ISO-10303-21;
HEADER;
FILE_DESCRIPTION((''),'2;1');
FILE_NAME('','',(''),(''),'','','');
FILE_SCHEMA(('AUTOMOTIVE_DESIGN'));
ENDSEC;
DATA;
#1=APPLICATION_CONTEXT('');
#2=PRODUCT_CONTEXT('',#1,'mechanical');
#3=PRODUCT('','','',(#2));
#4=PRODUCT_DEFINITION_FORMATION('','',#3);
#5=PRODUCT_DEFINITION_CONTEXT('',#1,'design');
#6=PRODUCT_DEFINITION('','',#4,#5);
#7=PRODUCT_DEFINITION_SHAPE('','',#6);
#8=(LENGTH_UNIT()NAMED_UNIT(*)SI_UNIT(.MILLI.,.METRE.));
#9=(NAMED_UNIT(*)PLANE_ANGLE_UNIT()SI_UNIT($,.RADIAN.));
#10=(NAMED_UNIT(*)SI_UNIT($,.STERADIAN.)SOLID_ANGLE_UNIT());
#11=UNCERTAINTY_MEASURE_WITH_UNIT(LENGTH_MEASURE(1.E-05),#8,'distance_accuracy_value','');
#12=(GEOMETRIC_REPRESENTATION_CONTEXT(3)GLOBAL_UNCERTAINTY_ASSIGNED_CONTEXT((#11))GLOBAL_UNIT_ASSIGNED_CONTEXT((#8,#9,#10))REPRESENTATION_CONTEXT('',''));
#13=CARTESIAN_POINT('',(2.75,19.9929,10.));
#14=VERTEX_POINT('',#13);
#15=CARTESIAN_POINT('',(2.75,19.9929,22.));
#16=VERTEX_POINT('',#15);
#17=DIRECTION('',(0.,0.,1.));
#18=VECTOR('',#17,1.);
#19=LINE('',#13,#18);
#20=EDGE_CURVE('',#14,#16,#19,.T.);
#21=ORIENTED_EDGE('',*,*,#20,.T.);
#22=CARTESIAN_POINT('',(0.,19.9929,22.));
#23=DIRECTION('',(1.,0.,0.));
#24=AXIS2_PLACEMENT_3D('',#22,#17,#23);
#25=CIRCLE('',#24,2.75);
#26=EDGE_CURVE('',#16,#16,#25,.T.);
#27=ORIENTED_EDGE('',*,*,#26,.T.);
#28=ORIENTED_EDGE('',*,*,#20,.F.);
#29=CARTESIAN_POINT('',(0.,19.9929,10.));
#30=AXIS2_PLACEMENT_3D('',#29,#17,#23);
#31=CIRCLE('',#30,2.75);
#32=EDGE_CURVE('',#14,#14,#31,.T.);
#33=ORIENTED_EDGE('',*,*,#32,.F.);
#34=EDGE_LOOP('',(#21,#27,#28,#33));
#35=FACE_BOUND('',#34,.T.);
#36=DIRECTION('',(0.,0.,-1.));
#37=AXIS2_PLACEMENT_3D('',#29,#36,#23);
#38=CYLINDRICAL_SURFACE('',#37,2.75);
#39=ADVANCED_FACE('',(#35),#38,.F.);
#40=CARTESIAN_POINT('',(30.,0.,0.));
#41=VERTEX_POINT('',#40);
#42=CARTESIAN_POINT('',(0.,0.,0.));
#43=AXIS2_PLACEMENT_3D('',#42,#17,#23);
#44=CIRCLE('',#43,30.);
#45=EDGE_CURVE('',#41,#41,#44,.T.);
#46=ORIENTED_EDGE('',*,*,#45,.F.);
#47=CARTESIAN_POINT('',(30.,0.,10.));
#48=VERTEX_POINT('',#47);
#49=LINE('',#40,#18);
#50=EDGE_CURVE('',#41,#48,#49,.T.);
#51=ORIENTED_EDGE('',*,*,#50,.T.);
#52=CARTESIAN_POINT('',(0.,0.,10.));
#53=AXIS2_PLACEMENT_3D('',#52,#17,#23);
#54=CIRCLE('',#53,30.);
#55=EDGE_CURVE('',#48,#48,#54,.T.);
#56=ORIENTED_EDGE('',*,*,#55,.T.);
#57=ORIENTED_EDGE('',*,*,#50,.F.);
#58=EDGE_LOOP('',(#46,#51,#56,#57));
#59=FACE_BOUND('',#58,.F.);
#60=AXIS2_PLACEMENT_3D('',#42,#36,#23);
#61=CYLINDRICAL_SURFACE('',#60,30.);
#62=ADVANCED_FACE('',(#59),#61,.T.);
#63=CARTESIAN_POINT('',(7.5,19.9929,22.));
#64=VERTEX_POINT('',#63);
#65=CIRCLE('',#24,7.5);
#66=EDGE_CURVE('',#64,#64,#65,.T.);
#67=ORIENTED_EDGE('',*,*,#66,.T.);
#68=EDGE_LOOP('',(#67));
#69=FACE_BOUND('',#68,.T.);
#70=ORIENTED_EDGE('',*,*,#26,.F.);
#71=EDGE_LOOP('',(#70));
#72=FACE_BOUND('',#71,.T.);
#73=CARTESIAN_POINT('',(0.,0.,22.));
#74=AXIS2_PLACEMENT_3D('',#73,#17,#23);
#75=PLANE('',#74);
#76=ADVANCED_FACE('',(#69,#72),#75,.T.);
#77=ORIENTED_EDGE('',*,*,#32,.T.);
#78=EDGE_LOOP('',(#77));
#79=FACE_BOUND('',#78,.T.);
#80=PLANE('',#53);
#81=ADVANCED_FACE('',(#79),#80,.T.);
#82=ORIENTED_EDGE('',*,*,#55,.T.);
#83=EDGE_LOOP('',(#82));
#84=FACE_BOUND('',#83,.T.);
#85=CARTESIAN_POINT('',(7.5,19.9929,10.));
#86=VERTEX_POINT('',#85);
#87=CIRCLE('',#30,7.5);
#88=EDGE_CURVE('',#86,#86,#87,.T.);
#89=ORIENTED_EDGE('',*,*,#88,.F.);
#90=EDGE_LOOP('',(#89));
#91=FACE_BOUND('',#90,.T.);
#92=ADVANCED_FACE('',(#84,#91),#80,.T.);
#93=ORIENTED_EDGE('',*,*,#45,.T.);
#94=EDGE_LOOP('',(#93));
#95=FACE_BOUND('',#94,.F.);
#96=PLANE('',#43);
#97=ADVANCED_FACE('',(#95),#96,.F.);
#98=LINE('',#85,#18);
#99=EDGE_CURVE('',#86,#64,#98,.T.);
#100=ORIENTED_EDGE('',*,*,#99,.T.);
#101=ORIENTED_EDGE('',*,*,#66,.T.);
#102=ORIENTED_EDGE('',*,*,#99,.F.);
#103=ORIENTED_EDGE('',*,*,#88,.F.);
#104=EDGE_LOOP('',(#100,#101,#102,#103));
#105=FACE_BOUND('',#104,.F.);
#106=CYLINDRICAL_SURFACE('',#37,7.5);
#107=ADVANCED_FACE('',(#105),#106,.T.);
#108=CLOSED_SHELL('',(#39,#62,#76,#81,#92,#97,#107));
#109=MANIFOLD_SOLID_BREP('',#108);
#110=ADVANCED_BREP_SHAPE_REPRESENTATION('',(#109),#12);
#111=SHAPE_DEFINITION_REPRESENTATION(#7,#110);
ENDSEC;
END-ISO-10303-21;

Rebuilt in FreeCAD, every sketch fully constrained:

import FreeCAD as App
import Part
import Sketcher

V = App.Vector
Q = App.Units.Quantity

doc = App.newDocument("Part")
params = doc.addObject("Spreadsheet::Sheet", "Params")
for row, (alias, value) in enumerate([
    ("sketch1_diameter", "60 mm"),
    ("pad1_length", "10 mm"),
    ("sketch2_diameter", "15 mm"),
    ("sketch2_diameter2", "5.5 mm"),
    ("pad2_length", "12 mm"),
], start=1):
    params.set(f"A{row}", alias)
    params.set(f"B{row}", "=" + value)
    params.setAlias(f"B{row}", alias)

body = doc.addObject("PartDesign::Body", "Body")

sketch1 = body.newObject("Sketcher::SketchObject", "Sketch")
sketch1.AttachmentSupport = (doc.getObject("XY_Plane"), [""])
sketch1.MapMode = "FlatFace"
sketch1.addGeometry(Part.Circle(V(0, 0, 0), V(0, 0, 1), 30), False)
sketch1.addConstraint([
    Sketcher.Constraint("Coincident", 0, 3, -1, 1),
    Sketcher.Constraint("Diameter", 0, Q("60 mm")),
])
sketch1.setExpression("Constraints[1]", "Params.sketch1_diameter")
pad1 = body.newObject("PartDesign::Pad", "Pad")
pad1.Profile = sketch1
pad1.setExpression("Length", "Params.pad1_length")

sketch2 = body.newObject("Sketcher::SketchObject", "Sketch001")
sketch2.AttachmentSupport = (doc.getObject("XY_Plane"), [""])
sketch2.MapMode = "FlatFace"
sketch2.AttachmentOffset = App.Placement(V(0, 0, 10), App.Rotation())
sketch2.addGeometry([
    Part.Circle(V(0, 19.9929, 0), V(0, 0, 1), 7.5),
    Part.Circle(V(0, 19.9929, 0), V(0, 0, 1), 2.75),
], False)
sketch2.addConstraint([
    Sketcher.Constraint("Coincident", 1, 3, 0, 3),
    Sketcher.Constraint("PointOnObject", 0, 3, -2),
    Sketcher.Constraint("Diameter", 0, Q("15 mm")),
    Sketcher.Constraint("Diameter", 1, Q("5.5 mm")),
    Sketcher.Constraint("DistanceY", -1, 1, 0, 3, Q("19.993 mm")),
])
sketch2.setExpression("Constraints[2]", "Params.sketch2_diameter")
sketch2.setExpression("Constraints[3]", "Params.sketch2_diameter2")
pad2 = body.newObject("PartDesign::Pad", "Pad001")
pad2.Profile = sketch2
pad2.setExpression("Length", "Params.pad2_length")

doc.recompute()
